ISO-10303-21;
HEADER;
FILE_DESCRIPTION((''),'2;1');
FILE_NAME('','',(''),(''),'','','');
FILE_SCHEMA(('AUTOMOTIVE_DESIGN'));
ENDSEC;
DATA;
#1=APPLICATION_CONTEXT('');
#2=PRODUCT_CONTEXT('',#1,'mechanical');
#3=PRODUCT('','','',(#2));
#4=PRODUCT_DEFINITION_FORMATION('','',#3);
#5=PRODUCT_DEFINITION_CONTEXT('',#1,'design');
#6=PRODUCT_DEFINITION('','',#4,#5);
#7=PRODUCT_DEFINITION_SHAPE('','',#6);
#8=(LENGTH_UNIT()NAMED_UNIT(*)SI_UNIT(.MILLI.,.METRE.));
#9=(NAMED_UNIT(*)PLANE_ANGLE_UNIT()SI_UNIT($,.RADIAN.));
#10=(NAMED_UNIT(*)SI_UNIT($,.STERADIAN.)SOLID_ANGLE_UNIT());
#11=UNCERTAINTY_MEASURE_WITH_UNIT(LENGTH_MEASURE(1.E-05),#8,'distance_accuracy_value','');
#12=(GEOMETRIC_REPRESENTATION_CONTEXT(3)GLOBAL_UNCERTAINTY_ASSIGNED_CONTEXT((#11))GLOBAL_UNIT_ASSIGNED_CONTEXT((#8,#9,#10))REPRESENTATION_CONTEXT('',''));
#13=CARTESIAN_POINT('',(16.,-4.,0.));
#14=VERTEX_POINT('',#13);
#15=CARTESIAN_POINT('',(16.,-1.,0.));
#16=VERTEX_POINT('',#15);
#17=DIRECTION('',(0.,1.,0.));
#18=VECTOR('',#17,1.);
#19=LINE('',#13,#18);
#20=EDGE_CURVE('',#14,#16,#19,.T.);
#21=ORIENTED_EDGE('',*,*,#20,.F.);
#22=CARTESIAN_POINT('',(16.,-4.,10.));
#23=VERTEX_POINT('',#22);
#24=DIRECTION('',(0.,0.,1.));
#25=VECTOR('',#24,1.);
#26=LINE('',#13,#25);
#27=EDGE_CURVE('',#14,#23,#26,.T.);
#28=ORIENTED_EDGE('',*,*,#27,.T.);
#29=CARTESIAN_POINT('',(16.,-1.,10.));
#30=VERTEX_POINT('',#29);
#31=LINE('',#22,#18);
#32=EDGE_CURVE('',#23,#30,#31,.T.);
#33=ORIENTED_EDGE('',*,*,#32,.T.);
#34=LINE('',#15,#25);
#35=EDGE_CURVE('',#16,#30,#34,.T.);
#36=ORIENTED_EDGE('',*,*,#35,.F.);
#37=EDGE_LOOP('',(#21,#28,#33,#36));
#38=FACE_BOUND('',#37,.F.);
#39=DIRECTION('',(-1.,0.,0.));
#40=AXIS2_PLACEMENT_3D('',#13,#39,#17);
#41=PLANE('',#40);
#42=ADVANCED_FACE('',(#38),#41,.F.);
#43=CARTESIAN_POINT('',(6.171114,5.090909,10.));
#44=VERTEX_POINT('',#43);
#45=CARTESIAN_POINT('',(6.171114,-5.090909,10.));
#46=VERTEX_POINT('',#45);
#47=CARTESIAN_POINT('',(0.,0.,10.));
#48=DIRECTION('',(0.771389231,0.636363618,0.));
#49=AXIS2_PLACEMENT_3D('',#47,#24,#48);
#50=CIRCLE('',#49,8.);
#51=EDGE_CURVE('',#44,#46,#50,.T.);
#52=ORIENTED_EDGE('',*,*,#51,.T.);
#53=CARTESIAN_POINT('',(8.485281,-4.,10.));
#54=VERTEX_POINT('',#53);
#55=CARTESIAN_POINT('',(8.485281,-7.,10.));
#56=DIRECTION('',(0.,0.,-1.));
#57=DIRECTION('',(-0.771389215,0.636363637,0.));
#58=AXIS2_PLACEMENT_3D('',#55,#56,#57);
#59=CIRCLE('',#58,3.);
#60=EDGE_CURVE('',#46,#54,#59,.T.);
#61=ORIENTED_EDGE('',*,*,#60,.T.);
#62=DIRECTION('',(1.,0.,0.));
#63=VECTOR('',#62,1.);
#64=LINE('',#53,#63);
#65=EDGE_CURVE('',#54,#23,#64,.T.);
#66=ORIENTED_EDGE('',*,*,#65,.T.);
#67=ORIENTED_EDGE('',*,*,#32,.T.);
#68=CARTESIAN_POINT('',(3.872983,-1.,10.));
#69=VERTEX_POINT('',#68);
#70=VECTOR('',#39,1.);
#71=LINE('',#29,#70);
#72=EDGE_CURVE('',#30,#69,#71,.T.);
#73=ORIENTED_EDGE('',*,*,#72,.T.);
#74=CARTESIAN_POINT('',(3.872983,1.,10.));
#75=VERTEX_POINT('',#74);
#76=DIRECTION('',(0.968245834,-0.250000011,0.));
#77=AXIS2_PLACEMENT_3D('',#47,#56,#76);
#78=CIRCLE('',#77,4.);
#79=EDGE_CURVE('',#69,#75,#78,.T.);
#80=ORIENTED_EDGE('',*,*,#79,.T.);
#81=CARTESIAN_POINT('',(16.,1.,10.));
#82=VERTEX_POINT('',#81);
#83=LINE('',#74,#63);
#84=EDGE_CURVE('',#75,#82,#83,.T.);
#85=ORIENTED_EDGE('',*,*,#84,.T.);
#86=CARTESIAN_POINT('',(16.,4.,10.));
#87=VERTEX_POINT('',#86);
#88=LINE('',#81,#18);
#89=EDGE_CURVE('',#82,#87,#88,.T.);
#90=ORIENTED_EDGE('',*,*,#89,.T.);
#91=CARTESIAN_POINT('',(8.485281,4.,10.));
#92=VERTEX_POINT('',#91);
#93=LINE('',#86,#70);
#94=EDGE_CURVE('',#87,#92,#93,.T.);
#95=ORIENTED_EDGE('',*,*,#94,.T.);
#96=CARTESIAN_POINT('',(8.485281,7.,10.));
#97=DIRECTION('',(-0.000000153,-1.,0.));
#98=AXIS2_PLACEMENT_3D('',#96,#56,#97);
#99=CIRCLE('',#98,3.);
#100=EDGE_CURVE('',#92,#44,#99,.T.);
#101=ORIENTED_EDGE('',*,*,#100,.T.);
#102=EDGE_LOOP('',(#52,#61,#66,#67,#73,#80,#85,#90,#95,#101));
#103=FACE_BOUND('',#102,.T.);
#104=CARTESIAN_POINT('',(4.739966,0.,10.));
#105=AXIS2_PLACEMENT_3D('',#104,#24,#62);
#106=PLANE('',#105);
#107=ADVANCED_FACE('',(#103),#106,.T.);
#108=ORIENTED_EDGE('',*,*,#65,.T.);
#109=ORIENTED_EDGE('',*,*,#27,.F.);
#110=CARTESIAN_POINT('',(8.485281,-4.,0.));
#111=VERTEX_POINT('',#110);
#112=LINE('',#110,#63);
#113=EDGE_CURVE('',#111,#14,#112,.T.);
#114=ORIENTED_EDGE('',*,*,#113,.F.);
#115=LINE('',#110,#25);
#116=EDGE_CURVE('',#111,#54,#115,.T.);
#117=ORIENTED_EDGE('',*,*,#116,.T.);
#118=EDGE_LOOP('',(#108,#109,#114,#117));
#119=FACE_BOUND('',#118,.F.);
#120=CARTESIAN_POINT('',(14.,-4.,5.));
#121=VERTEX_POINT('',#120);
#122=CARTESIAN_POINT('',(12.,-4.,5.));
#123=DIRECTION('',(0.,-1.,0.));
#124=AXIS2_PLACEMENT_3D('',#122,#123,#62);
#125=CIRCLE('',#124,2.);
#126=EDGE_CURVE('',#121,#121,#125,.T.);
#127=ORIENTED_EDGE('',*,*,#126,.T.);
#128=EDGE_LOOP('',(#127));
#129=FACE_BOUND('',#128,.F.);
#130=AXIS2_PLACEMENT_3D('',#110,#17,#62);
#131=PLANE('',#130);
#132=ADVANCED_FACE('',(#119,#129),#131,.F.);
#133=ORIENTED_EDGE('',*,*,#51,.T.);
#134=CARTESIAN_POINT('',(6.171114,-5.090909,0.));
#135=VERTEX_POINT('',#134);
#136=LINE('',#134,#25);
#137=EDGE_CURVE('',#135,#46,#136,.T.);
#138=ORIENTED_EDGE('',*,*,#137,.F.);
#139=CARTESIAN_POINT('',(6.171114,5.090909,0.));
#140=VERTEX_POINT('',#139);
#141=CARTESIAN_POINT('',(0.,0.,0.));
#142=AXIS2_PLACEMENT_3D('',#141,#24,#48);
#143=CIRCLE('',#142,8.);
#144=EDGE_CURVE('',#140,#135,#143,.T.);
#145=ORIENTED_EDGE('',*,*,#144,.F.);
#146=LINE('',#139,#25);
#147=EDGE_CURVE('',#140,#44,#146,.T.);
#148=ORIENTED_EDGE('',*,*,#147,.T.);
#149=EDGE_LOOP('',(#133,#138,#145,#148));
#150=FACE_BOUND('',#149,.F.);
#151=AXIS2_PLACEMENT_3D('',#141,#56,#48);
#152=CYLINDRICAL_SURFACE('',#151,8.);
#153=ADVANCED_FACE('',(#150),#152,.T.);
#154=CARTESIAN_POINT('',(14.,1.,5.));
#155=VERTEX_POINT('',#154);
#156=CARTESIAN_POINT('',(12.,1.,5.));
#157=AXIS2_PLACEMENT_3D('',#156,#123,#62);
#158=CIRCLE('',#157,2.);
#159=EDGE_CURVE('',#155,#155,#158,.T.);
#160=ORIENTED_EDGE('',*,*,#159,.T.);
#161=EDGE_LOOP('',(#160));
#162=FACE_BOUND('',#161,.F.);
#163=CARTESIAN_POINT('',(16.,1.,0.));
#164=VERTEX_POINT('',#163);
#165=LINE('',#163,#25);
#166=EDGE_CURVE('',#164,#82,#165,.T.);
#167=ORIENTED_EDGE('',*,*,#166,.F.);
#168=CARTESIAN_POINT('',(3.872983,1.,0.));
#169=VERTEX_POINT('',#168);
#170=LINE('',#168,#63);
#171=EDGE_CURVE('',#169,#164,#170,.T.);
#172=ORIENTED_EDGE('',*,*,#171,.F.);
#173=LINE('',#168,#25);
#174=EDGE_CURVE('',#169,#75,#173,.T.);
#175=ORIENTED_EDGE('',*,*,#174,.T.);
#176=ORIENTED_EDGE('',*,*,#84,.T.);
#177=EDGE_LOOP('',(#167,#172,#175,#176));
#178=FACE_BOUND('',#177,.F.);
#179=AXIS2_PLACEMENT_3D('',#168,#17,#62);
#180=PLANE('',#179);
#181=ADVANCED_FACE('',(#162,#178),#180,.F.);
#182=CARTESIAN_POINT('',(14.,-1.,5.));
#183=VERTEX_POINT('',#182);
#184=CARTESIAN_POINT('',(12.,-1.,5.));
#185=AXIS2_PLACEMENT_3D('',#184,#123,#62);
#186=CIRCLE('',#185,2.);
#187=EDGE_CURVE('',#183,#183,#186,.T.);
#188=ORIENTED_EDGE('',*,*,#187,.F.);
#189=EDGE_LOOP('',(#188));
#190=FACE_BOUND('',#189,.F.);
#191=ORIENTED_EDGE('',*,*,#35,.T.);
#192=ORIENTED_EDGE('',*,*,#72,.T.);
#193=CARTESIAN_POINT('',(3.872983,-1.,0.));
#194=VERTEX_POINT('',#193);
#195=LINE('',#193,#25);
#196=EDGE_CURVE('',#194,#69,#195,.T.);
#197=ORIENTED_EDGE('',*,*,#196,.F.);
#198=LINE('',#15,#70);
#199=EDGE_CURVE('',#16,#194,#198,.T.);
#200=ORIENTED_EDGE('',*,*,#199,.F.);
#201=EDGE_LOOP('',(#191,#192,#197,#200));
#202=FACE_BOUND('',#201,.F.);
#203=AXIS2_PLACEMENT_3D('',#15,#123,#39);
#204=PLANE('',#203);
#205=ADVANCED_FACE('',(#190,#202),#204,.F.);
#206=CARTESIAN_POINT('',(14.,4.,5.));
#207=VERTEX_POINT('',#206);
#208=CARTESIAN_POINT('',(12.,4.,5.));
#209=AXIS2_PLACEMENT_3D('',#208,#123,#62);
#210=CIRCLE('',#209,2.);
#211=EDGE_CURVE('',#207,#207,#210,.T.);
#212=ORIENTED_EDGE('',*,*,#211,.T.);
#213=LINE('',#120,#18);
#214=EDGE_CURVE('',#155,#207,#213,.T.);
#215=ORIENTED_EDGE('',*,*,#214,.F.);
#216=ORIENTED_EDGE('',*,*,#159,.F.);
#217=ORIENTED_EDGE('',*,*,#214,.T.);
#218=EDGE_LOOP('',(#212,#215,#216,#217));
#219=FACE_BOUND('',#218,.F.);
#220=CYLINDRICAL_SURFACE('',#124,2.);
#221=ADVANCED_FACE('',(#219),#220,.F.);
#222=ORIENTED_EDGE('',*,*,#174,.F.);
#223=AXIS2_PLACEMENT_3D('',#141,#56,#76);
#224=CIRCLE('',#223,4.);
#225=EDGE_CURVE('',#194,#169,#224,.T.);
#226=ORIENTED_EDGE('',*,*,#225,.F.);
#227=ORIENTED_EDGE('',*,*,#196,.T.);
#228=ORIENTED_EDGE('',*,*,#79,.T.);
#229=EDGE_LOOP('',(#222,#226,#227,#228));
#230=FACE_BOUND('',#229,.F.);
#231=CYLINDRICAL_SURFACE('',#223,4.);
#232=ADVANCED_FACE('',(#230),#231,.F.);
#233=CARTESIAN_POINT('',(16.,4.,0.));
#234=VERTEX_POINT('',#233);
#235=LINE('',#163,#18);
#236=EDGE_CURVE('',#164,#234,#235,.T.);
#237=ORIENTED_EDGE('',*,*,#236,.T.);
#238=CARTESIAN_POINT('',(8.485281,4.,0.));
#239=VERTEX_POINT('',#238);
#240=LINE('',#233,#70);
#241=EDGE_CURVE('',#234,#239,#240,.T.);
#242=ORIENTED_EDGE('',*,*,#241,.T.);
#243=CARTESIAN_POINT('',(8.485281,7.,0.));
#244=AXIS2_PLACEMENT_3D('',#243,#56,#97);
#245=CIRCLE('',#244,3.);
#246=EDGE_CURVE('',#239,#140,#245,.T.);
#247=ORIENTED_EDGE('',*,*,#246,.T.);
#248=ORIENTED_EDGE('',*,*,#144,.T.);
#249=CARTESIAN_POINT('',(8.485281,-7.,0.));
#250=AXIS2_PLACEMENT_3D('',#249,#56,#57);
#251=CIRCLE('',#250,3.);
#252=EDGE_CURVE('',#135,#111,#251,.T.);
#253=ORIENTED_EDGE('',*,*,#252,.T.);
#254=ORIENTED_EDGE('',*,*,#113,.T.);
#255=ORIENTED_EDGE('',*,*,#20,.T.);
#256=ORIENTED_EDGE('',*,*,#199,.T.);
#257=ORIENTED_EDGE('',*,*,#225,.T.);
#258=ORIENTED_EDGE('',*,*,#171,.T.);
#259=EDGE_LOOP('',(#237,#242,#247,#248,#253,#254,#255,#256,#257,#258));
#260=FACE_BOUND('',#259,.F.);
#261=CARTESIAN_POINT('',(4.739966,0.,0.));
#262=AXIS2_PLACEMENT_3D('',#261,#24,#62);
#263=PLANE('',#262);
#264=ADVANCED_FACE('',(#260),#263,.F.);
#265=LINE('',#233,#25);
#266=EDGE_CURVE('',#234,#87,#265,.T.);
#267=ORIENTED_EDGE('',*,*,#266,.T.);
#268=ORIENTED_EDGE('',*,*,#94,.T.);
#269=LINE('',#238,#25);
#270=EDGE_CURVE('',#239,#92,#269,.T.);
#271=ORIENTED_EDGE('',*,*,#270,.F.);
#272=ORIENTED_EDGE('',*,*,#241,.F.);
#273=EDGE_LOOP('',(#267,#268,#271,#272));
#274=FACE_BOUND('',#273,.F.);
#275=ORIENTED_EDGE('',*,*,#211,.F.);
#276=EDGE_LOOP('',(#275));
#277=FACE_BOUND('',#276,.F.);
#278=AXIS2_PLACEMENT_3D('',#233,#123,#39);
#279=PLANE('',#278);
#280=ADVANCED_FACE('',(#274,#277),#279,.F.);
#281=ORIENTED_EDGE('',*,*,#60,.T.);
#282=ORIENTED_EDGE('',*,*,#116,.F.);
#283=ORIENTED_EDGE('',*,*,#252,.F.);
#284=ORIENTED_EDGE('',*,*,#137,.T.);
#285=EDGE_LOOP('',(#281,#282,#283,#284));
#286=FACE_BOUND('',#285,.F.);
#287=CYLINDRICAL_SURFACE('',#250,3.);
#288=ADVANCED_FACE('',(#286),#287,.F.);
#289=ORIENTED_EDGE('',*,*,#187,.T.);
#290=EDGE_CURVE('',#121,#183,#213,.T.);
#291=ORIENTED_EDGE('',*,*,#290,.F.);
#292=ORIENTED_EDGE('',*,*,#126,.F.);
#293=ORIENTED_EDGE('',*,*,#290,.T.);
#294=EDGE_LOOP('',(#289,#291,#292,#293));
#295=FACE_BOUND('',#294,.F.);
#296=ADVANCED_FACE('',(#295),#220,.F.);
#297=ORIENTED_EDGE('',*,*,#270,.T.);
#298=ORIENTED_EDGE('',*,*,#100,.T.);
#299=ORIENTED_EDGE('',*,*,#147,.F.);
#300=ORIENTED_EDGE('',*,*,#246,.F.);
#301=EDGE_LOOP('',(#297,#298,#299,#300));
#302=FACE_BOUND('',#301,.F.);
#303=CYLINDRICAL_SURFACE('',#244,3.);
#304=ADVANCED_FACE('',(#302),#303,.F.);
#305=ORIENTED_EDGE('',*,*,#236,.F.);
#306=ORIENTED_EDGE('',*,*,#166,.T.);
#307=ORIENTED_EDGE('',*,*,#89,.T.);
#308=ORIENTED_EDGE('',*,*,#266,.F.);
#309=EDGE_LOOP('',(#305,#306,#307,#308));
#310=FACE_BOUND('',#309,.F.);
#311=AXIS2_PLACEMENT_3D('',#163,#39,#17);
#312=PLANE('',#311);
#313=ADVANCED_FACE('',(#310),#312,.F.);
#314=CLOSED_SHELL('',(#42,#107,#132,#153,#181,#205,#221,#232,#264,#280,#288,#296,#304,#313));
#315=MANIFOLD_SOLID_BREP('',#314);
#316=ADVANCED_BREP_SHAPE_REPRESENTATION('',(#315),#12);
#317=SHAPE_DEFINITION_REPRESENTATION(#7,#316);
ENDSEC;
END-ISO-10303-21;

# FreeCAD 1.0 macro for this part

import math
import FreeCAD as App
import Part
import Sketcher

V = App.Vector
Q = App.Units.Quantity

doc = App.newDocument("Part")
body = doc.addObject("PartDesign::Body", "Body")

sketch1 = body.newObject("Sketcher::SketchObject", "Sketch")
sketch1.AttachmentSupport = (doc.getObject("XY_Plane"), [""])
sketch1.MapMode = "FlatFace"
sketch1.addGeometry(Part.ArcOfCircle(Part.Circle(V(0, 0, 0), V(0, 0, 1), 4), math.radians(14), math.radians(346)), False)
sketch1.addGeometry(Part.LineSegment(V(3.9, 1, 0), V(16, 1, 0)), False)
sketch1.addGeometry(Part.LineSegment(V(16, 1, 0), V(16, 4, 0)), False)
sketch1.addGeometry(Part.LineSegment(V(16, 4, 0), V(8.5, 4, 0)), False)
sketch1.addGeometry(Part.ArcOfCircle(Part.Circle(V(8.5, 7, 0), V(0, 0, 1), 3), math.radians(-140), math.radians(-90)), False)
sketch1.addGeometry(Part.ArcOfCircle(Part.Circle(V(0, 0, 0), V(0, 0, 1), 8), math.radians(40), math.radians(320)), False)
sketch1.addGeometry(Part.ArcOfCircle(Part.Circle(V(8.5, -7, 0), V(0, 0, 1), 3), math.radians(90), math.radians(140)), False)
sketch1.addGeometry(Part.LineSegment(V(8.5, -4, 0), V(16, -4, 0)), False)
sketch1.addGeometry(Part.LineSegment(V(16, -4, 0), V(16, -1, 0)), False)
sketch1.addGeometry(Part.LineSegment(V(16, -1, 0), V(3.9, -1, 0)), False)
sketch1.addConstraint(Sketcher.Constraint("Coincident", 0, 1, 1, 1))
sketch1.addConstraint(Sketcher.Constraint("Coincident", 1, 2, 2, 1))
sketch1.addConstraint(Sketcher.Constraint("Coincident", 2, 2, 3, 1))
sketch1.addConstraint(Sketcher.Constraint("Tangent", 3, 2, 4, 2))
sketch1.addConstraint(Sketcher.Constraint("Tangent", 4, 1, 5, 1))
sketch1.addConstraint(Sketcher.Constraint("Tangent", 5, 2, 6, 2))
sketch1.addConstraint(Sketcher.Constraint("Tangent", 6, 1, 7, 1))
sketch1.addConstraint(Sketcher.Constraint("Coincident", 7, 2, 8, 1))
sketch1.addConstraint(Sketcher.Constraint("Coincident", 8, 2, 9, 1))
sketch1.addConstraint(Sketcher.Constraint("Coincident", 9, 2, 0, 2))
sketch1.addConstraint(Sketcher.Constraint("Horizontal", 1))
sketch1.addConstraint(Sketcher.Constraint("Vertical", 2))
sketch1.addConstraint(Sketcher.Constraint("Horizontal", 3))
sketch1.addConstraint(Sketcher.Constraint("Horizontal", 7))
sketch1.addConstraint(Sketcher.Constraint("Vertical", 8))
sketch1.addConstraint(Sketcher.Constraint("Horizontal", 9))
sketch1.addConstraint(Sketcher.Constraint("Coincident", 0, 3, -1, 1))
sketch1.addConstraint(Sketcher.Constraint("Coincident", 5, 3, -1, 1))
sketch1.addConstraint(Sketcher.Constraint("Equal", 4, 6))
sketch1.addConstraint(Sketcher.Constraint("Symmetric", 2, 2, 7, 2, -1))
sketch1.addConstraint(Sketcher.Constraint("Vertical", 0, 1, 9, 2))
sketch1.addConstraint(Sketcher.Constraint("Radius", 0, Q("4 mm")))
sketch1.addConstraint(Sketcher.Constraint("Radius", 4, Q("3 mm")))
sketch1.addConstraint(Sketcher.Constraint("Radius", 5, Q("8 mm")))
sketch1.addConstraint(Sketcher.Constraint("DistanceY", 2, 1, 2, 2, Q("3 mm")))
sketch1.addConstraint(Sketcher.Constraint("DistanceY", -1, 1, 4, 3, Q("7 mm")))
sketch1.addConstraint(Sketcher.Constraint("DistanceX", -1, 1, 1, 2, Q("16 mm")))
pad1 = body.newObject("PartDesign::Pad", "Pad")
pad1.Profile = sketch1
pad1.Length = 10

sketch2 = body.newObject("Sketcher::SketchObject", "Sketch001")
sketch2.AttachmentSupport = (doc.getObject("XZ_Plane"), [""])
sketch2.MapMode = "FlatFace"
sketch2.AttachmentOffset = App.Placement(V(0, 0, 4), App.Rotation())
sketch2.addGeometry(Part.Circle(V(12, 5, 0), V(0, 0, 1), 2), False)
sketch2.addConstraint(Sketcher.Constraint("Diameter", 0, Q("4 mm")))
sketch2.addConstraint(Sketcher.Constraint("DistanceX", -1, 1, 0, 3, Q("12 mm")))
sketch2.addConstraint(Sketcher.Constraint("DistanceY", -1, 1, 0, 3, Q("5 mm")))
pocket1 = body.newObject("PartDesign::Pocket", "Pocket")
pocket1.Profile = sketch2
pocket1.Type = "ThroughAll"

doc.recompute()
